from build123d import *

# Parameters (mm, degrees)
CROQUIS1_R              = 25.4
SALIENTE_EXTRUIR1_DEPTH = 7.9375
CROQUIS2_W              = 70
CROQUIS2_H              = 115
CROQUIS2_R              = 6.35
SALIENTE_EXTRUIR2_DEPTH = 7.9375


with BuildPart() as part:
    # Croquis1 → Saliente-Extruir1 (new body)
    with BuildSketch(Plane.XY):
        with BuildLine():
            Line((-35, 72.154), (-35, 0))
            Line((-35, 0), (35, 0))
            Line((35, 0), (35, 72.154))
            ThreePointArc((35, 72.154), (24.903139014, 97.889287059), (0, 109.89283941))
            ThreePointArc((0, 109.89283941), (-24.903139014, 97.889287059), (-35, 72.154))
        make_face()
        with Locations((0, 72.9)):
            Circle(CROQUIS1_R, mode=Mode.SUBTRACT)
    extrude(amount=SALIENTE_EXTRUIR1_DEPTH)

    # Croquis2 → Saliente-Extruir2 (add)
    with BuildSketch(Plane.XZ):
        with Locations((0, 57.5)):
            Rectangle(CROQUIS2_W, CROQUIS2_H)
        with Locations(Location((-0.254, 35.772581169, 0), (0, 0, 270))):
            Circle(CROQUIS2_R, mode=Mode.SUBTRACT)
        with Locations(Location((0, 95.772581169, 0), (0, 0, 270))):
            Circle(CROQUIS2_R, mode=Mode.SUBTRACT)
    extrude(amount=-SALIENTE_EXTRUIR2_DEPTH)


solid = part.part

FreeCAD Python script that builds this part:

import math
import FreeCAD as App
import Part
import Sketcher
Q = App.Units.Quantity


def add_polygon(sketch, points):
    """Adds a closed chain of lines whose ends are joined by coincident constraints."""
    first, n = sketch.GeometryCount, len(points)
    for a, b in zip(points, points[1:] + points[:1]):
        sketch.addGeometry(Part.LineSegment(App.Vector(*a, 0), App.Vector(*b, 0)), False)
    for i in range(n):
        sketch.addConstraint(Sketcher.Constraint("Coincident", first + i, 2, first + (i + 1) % n, 1))

doc = App.newDocument("Part")
body = doc.addObject("PartDesign::Body", "Body")

sketch1 = body.newObject("Sketcher::SketchObject", "Sketch")
sketch1.AttachmentSupport = (doc.getObject("XY_Plane"), [""])
sketch1.MapMode = "FlatFace"
sketch1.addGeometry(Part.LineSegment(App.Vector(-35, 72, 0), App.Vector(-35, 0, 0)), False)
sketch1.addGeometry(Part.LineSegment(App.Vector(-35, 0, 0), App.Vector(35, 0, 0)), False)
sketch1.addGeometry(Part.LineSegment(App.Vector(35, 0, 0), App.Vector(35, 72, 0)), False)
sketch1.addGeometry(Part.ArcOfCircle(Part.Circle(App.Vector(-3, 72, 0), App.Vector(0, 0, 1), 38), math.radians(0), math.radians(86)), False)
sketch1.addGeometry(Part.ArcOfCircle(Part.Circle(App.Vector(3, 72, 0), App.Vector(0, 0, 1), 38), math.radians(94), math.radians(180)), False)
sketch1.addGeometry(Part.Circle(App.Vector(0, 73, 0), App.Vector(0, 0, 1), 25), False)
sketch1.addConstraint(Sketcher.Constraint("Coincident", 0, 2, 1, 1))
sketch1.addConstraint(Sketcher.Constraint("Coincident", 1, 2, 2, 1))
sketch1.addConstraint(Sketcher.Constraint("Tangent", 2, 2, 3, 1))
sketch1.addConstraint(Sketcher.Constraint("Coincident", 3, 2, 4, 1))
sketch1.addConstraint(Sketcher.Constraint("Tangent", 4, 2, 0, 1))
sketch1.addConstraint(Sketcher.Constraint("Vertical", 0))
sketch1.addConstraint(Sketcher.Constraint("Horizontal", 1))
sketch1.addConstraint(Sketcher.Constraint("Vertical", 2))
sketch1.addConstraint(Sketcher.Constraint("Equal", 3, 4))
sketch1.addConstraint(Sketcher.Constraint("Symmetric", 0, 2, 1, 2, -1, 1))
sketch1.addConstraint(Sketcher.Constraint("PointOnObject", 5, 3, -2))
sketch1.addConstraint(Sketcher.Constraint("PointOnObject", 3, 2, -2))
sketch1.addConstraint(Sketcher.Constraint("Diameter", 5, Q("2 in")))
sketch1.addConstraint(Sketcher.Constraint("Radius", 3, Q("1.49 in")))
sketch1.addConstraint(Sketcher.Constraint("DistanceX", 1, 1, 1, 2, Q("70 mm")))
sketch1.addConstraint(Sketcher.Constraint("DistanceY", 0, 2, 0, 1, Q("72.154 mm")))
sketch1.addConstraint(Sketcher.Constraint("DistanceY", -1, 1, 5, 3, Q("72.9 mm")))
pad1 = body.newObject("PartDesign::Pad", "Pad")
pad1.Profile = sketch1
pad1.Length = Q("0.3125 in")

sketch2 = body.newObject("Sketcher::SketchObject", "Sketch001")
sketch2.AttachmentSupport = (doc.getObject("XZ_Plane"), [""])
sketch2.MapMode = "FlatFace"
add_polygon(sketch2, [(-35, 115), (-35, 0), (35, 0), (35, 115)])
sketch2.addGeometry(Part.Circle(App.Vector(0, 36, 0), App.Vector(0, 0, 1), 6), False)
sketch2.addGeometry(Part.Circle(App.Vector(0, 96, 0), App.Vector(0, 0, 1), 6), False)
sketch2.addConstraint(Sketcher.Constraint("Vertical", 0))
sketch2.addConstraint(Sketcher.Constraint("Horizontal", 1))
sketch2.addConstraint(Sketcher.Constraint("Vertical", 2))
sketch2.addConstraint(Sketcher.Constraint("Horizontal", 3))
sketch2.addConstraint(Sketcher.Constraint("Equal", 4, 5))
sketch2.addConstraint(Sketcher.Constraint("Symmetric", 0, 2, 1, 2, -1, 1))
sketch2.addConstraint(Sketcher.Constraint("PointOnObject", 5, 3, -2))
sketch2.addConstraint(Sketcher.Constraint("Diameter", 4, Q("0.5 in")))
sketch2.addConstraint(Sketcher.Constraint("DistanceX", 4, 3, -1, 1, Q("0.01 in")))
sketch2.addConstraint(Sketcher.Constraint("DistanceX", 1, 1, 1, 2, Q("70 mm")))
sketch2.addConstraint(Sketcher.Constraint("DistanceY", 0, 2, 0, 1, Q("115 mm")))
sketch2.addConstraint(Sketcher.Constraint("DistanceY", 4, 3, 5, 3, Q("60 mm")))
sketch2.addConstraint(Sketcher.Constraint("DistanceY", -1, 1, 4, 3, Q("35.772581 mm")))
pad2 = body.newObject("PartDesign::Pad", "Pad001")
pad2.Profile = sketch2
pad2.Length = Q("0.3125 in")
pad2.Reversed = True

doc.recompute()
